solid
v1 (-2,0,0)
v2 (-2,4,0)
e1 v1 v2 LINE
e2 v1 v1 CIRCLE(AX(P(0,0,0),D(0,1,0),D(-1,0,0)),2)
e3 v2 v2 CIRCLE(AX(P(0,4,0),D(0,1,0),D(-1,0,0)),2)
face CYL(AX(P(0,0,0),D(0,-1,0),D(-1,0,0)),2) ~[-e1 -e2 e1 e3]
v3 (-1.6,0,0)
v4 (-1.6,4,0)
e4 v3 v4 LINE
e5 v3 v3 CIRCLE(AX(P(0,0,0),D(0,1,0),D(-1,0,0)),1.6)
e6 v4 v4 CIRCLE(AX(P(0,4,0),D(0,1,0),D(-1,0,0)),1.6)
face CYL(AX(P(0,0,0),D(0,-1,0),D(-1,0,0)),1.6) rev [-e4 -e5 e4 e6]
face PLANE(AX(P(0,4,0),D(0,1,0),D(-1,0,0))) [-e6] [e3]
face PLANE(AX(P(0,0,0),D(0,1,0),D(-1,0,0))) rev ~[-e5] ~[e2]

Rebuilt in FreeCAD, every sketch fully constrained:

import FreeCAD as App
import Part
import Sketcher
Q = App.Units.Quantity

doc = App.newDocument("Part")
body = doc.addObject("PartDesign::Body", "Body")

# Sketch on XZ plane
sketch1 = body.newObject("Sketcher::SketchObject", "Sketch")
sketch1.AttachmentSupport = (doc.getObject("XZ_Plane"), [""])
sketch1.MapMode = "FlatFace"
sketch1.addGeometry([
    Part.Circle(App.Vector(0, 0, 0), App.Vector(0, 0, 1), 2),
    Part.Circle(App.Vector(0, 0, 0), App.Vector(0, 0, 1), 1.6),
], False)
sketch1.addConstraint([
    Sketcher.Constraint("Coincident", 0, 3, -1, 1),
    Sketcher.Constraint("Coincident", 1, 3, -1, 1),
    Sketcher.Constraint("Diameter", 0, Q("4 mm")),
    Sketcher.Constraint("Diameter", 1, Q("3.2 mm")),
])
pad1 = body.newObject("PartDesign::Pad", "Pad")
pad1.Profile = sketch1
pad1.Length = 4
pad1.Reversed = True

doc.recompute()
